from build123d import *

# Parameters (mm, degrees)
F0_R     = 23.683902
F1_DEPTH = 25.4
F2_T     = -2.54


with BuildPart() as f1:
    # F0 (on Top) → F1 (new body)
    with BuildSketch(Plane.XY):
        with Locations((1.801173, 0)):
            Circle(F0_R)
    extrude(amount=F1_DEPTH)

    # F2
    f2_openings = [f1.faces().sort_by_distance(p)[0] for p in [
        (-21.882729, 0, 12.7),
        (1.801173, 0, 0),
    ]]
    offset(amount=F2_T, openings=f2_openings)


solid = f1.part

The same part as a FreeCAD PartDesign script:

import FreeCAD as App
import Part
import Sketcher
Q = App.Units.Quantity


def faces_at(feature, points):
    """Names of the faces that lie closest to the given points."""
    faces = feature.Shape.Faces
    near = lambda p: min(range(len(faces)), key=lambda i: faces[i].distToShape(Part.Vertex(*p))[0])
    return sorted({f"Face{near(p) + 1}" for p in points})

doc = App.newDocument("Part")
body = doc.addObject("PartDesign::Body", "Body")

sketch1 = body.newObject("Sketcher::SketchObject", "Sketch")
sketch1.AttachmentSupport = (doc.getObject("XY_Plane"), [""])
sketch1.MapMode = "FlatFace"
sketch1.addGeometry(Part.Circle(App.Vector(2, 0, 0), App.Vector(0, 0, 1), 24), False)
sketch1.addConstraint([
    Sketcher.Constraint("PointOnObject", 0, 3, -1),
    Sketcher.Constraint("Diameter", 0, 47.367804),
    Sketcher.Constraint("DistanceX", -1, 1, 0, 3, 1.801173),
])
pad1 = body.newObject("PartDesign::Pad", "Pad")
pad1.Profile = sketch1
pad1.Length = Q("1 in")
doc.recompute()

thickness = body.newObject("PartDesign::Thickness", "Thickness")
thickness.Base = (pad1, faces_at(pad1, [(-21.883, 0, 12.7), (1.801, 0, 0)]))
thickness.Value = Q("0.1 in")
thickness.Reversed = True
thickness.Join = "Arc"

doc.recompute()
